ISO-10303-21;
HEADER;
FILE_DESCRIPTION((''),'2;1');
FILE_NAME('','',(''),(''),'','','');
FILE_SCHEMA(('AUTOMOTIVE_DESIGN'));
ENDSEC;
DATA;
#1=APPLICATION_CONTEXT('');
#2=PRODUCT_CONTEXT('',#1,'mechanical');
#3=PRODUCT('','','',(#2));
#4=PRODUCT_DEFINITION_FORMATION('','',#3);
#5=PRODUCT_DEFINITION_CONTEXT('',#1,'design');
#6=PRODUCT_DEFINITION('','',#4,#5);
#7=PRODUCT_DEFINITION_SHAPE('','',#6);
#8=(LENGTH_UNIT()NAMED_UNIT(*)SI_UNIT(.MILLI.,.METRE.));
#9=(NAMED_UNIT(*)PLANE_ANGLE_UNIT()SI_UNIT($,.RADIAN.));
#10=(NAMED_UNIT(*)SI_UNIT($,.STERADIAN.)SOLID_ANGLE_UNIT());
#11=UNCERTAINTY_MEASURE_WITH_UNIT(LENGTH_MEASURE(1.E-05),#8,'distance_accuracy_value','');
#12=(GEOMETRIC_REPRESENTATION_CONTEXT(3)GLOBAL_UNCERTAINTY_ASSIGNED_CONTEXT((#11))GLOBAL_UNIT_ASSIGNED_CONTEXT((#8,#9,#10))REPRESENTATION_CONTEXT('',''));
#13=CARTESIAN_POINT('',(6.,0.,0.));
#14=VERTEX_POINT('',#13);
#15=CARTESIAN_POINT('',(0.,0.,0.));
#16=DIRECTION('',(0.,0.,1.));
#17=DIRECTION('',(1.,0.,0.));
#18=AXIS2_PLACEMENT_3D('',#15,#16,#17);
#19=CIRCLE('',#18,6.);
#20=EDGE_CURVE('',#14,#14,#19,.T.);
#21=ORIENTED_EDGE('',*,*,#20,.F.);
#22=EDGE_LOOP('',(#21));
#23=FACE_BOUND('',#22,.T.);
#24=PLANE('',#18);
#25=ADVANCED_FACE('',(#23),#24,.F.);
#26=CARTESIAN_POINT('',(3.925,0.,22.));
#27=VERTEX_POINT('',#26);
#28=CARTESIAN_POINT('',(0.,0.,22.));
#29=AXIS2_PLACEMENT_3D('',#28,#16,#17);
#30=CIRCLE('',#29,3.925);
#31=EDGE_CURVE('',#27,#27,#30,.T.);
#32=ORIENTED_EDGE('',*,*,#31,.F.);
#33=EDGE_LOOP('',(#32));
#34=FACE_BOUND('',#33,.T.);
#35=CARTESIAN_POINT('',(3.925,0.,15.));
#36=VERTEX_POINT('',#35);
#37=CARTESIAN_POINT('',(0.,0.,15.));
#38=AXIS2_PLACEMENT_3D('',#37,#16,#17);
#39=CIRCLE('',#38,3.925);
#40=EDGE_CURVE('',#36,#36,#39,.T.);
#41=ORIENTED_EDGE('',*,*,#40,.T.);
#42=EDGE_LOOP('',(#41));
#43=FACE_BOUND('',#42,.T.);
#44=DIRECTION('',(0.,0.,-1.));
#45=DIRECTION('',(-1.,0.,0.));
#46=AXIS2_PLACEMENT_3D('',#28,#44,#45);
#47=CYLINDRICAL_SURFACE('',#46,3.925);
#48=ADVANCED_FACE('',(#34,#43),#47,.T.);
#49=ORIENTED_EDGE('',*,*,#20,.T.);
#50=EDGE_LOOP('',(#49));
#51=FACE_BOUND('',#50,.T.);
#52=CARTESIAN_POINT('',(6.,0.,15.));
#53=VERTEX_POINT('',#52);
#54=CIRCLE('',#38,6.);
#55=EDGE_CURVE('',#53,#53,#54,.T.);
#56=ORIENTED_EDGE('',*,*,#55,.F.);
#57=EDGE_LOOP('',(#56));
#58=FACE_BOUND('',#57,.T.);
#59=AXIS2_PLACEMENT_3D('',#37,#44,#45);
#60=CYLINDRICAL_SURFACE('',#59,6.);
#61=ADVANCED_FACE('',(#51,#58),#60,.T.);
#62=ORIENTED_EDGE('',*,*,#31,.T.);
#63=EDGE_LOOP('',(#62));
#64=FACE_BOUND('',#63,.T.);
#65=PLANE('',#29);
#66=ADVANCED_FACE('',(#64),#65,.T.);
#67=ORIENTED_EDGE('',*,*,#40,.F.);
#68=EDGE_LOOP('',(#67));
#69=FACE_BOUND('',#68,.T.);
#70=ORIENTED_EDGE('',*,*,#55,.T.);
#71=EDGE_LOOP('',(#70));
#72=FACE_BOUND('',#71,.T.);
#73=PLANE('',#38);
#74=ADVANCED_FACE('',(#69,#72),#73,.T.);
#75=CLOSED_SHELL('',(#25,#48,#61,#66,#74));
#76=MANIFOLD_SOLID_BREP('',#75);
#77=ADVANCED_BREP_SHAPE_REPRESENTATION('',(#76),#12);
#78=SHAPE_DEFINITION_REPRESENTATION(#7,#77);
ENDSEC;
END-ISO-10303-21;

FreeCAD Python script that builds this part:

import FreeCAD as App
import Part
import Sketcher

V = App.Vector

doc = App.newDocument("Part")
body = doc.addObject("PartDesign::Body", "Body")

# Sketch on XY plane
sketch1 = body.newObject("Sketcher::SketchObject", "Sketch")
sketch1.AttachmentSupport = (doc.getObject("XY_Plane"), [""])
sketch1.MapMode = "FlatFace"
sketch1.addGeometry(Part.Circle(V(0, 0, 0), V(0, 0, 1), 6), False)
sketch1.addConstraint([
    Sketcher.Constraint("Coincident", 0, 3, -1, 1),
    Sketcher.Constraint("Diameter", 0, 12.0),
])
pad1 = body.newObject("PartDesign::Pad", "Pad")
pad1.Profile = sketch1
pad1.Length = 15

# Sketch on XY plane
sketch2 = body.newObject("Sketcher::SketchObject", "Sketch001")
sketch2.AttachmentSupport = (doc.getObject("XY_Plane"), [""])
sketch2.MapMode = "FlatFace"
sketch2.AttachmentOffset = App.Placement(V(0, 0, 15), App.Rotation())
sketch2.addGeometry(Part.Circle(V(0, 0, 0), V(0, 0, 1), 3.9), False)
sketch2.addConstraint([
    Sketcher.Constraint("Coincident", 0, 3, -1, 1),
    Sketcher.Constraint("Diameter", 0, 7.85),
])
pad2 = body.newObject("PartDesign::Pad", "Pad001")
pad2.Profile = sketch2
pad2.Length = 7

doc.recompute()
